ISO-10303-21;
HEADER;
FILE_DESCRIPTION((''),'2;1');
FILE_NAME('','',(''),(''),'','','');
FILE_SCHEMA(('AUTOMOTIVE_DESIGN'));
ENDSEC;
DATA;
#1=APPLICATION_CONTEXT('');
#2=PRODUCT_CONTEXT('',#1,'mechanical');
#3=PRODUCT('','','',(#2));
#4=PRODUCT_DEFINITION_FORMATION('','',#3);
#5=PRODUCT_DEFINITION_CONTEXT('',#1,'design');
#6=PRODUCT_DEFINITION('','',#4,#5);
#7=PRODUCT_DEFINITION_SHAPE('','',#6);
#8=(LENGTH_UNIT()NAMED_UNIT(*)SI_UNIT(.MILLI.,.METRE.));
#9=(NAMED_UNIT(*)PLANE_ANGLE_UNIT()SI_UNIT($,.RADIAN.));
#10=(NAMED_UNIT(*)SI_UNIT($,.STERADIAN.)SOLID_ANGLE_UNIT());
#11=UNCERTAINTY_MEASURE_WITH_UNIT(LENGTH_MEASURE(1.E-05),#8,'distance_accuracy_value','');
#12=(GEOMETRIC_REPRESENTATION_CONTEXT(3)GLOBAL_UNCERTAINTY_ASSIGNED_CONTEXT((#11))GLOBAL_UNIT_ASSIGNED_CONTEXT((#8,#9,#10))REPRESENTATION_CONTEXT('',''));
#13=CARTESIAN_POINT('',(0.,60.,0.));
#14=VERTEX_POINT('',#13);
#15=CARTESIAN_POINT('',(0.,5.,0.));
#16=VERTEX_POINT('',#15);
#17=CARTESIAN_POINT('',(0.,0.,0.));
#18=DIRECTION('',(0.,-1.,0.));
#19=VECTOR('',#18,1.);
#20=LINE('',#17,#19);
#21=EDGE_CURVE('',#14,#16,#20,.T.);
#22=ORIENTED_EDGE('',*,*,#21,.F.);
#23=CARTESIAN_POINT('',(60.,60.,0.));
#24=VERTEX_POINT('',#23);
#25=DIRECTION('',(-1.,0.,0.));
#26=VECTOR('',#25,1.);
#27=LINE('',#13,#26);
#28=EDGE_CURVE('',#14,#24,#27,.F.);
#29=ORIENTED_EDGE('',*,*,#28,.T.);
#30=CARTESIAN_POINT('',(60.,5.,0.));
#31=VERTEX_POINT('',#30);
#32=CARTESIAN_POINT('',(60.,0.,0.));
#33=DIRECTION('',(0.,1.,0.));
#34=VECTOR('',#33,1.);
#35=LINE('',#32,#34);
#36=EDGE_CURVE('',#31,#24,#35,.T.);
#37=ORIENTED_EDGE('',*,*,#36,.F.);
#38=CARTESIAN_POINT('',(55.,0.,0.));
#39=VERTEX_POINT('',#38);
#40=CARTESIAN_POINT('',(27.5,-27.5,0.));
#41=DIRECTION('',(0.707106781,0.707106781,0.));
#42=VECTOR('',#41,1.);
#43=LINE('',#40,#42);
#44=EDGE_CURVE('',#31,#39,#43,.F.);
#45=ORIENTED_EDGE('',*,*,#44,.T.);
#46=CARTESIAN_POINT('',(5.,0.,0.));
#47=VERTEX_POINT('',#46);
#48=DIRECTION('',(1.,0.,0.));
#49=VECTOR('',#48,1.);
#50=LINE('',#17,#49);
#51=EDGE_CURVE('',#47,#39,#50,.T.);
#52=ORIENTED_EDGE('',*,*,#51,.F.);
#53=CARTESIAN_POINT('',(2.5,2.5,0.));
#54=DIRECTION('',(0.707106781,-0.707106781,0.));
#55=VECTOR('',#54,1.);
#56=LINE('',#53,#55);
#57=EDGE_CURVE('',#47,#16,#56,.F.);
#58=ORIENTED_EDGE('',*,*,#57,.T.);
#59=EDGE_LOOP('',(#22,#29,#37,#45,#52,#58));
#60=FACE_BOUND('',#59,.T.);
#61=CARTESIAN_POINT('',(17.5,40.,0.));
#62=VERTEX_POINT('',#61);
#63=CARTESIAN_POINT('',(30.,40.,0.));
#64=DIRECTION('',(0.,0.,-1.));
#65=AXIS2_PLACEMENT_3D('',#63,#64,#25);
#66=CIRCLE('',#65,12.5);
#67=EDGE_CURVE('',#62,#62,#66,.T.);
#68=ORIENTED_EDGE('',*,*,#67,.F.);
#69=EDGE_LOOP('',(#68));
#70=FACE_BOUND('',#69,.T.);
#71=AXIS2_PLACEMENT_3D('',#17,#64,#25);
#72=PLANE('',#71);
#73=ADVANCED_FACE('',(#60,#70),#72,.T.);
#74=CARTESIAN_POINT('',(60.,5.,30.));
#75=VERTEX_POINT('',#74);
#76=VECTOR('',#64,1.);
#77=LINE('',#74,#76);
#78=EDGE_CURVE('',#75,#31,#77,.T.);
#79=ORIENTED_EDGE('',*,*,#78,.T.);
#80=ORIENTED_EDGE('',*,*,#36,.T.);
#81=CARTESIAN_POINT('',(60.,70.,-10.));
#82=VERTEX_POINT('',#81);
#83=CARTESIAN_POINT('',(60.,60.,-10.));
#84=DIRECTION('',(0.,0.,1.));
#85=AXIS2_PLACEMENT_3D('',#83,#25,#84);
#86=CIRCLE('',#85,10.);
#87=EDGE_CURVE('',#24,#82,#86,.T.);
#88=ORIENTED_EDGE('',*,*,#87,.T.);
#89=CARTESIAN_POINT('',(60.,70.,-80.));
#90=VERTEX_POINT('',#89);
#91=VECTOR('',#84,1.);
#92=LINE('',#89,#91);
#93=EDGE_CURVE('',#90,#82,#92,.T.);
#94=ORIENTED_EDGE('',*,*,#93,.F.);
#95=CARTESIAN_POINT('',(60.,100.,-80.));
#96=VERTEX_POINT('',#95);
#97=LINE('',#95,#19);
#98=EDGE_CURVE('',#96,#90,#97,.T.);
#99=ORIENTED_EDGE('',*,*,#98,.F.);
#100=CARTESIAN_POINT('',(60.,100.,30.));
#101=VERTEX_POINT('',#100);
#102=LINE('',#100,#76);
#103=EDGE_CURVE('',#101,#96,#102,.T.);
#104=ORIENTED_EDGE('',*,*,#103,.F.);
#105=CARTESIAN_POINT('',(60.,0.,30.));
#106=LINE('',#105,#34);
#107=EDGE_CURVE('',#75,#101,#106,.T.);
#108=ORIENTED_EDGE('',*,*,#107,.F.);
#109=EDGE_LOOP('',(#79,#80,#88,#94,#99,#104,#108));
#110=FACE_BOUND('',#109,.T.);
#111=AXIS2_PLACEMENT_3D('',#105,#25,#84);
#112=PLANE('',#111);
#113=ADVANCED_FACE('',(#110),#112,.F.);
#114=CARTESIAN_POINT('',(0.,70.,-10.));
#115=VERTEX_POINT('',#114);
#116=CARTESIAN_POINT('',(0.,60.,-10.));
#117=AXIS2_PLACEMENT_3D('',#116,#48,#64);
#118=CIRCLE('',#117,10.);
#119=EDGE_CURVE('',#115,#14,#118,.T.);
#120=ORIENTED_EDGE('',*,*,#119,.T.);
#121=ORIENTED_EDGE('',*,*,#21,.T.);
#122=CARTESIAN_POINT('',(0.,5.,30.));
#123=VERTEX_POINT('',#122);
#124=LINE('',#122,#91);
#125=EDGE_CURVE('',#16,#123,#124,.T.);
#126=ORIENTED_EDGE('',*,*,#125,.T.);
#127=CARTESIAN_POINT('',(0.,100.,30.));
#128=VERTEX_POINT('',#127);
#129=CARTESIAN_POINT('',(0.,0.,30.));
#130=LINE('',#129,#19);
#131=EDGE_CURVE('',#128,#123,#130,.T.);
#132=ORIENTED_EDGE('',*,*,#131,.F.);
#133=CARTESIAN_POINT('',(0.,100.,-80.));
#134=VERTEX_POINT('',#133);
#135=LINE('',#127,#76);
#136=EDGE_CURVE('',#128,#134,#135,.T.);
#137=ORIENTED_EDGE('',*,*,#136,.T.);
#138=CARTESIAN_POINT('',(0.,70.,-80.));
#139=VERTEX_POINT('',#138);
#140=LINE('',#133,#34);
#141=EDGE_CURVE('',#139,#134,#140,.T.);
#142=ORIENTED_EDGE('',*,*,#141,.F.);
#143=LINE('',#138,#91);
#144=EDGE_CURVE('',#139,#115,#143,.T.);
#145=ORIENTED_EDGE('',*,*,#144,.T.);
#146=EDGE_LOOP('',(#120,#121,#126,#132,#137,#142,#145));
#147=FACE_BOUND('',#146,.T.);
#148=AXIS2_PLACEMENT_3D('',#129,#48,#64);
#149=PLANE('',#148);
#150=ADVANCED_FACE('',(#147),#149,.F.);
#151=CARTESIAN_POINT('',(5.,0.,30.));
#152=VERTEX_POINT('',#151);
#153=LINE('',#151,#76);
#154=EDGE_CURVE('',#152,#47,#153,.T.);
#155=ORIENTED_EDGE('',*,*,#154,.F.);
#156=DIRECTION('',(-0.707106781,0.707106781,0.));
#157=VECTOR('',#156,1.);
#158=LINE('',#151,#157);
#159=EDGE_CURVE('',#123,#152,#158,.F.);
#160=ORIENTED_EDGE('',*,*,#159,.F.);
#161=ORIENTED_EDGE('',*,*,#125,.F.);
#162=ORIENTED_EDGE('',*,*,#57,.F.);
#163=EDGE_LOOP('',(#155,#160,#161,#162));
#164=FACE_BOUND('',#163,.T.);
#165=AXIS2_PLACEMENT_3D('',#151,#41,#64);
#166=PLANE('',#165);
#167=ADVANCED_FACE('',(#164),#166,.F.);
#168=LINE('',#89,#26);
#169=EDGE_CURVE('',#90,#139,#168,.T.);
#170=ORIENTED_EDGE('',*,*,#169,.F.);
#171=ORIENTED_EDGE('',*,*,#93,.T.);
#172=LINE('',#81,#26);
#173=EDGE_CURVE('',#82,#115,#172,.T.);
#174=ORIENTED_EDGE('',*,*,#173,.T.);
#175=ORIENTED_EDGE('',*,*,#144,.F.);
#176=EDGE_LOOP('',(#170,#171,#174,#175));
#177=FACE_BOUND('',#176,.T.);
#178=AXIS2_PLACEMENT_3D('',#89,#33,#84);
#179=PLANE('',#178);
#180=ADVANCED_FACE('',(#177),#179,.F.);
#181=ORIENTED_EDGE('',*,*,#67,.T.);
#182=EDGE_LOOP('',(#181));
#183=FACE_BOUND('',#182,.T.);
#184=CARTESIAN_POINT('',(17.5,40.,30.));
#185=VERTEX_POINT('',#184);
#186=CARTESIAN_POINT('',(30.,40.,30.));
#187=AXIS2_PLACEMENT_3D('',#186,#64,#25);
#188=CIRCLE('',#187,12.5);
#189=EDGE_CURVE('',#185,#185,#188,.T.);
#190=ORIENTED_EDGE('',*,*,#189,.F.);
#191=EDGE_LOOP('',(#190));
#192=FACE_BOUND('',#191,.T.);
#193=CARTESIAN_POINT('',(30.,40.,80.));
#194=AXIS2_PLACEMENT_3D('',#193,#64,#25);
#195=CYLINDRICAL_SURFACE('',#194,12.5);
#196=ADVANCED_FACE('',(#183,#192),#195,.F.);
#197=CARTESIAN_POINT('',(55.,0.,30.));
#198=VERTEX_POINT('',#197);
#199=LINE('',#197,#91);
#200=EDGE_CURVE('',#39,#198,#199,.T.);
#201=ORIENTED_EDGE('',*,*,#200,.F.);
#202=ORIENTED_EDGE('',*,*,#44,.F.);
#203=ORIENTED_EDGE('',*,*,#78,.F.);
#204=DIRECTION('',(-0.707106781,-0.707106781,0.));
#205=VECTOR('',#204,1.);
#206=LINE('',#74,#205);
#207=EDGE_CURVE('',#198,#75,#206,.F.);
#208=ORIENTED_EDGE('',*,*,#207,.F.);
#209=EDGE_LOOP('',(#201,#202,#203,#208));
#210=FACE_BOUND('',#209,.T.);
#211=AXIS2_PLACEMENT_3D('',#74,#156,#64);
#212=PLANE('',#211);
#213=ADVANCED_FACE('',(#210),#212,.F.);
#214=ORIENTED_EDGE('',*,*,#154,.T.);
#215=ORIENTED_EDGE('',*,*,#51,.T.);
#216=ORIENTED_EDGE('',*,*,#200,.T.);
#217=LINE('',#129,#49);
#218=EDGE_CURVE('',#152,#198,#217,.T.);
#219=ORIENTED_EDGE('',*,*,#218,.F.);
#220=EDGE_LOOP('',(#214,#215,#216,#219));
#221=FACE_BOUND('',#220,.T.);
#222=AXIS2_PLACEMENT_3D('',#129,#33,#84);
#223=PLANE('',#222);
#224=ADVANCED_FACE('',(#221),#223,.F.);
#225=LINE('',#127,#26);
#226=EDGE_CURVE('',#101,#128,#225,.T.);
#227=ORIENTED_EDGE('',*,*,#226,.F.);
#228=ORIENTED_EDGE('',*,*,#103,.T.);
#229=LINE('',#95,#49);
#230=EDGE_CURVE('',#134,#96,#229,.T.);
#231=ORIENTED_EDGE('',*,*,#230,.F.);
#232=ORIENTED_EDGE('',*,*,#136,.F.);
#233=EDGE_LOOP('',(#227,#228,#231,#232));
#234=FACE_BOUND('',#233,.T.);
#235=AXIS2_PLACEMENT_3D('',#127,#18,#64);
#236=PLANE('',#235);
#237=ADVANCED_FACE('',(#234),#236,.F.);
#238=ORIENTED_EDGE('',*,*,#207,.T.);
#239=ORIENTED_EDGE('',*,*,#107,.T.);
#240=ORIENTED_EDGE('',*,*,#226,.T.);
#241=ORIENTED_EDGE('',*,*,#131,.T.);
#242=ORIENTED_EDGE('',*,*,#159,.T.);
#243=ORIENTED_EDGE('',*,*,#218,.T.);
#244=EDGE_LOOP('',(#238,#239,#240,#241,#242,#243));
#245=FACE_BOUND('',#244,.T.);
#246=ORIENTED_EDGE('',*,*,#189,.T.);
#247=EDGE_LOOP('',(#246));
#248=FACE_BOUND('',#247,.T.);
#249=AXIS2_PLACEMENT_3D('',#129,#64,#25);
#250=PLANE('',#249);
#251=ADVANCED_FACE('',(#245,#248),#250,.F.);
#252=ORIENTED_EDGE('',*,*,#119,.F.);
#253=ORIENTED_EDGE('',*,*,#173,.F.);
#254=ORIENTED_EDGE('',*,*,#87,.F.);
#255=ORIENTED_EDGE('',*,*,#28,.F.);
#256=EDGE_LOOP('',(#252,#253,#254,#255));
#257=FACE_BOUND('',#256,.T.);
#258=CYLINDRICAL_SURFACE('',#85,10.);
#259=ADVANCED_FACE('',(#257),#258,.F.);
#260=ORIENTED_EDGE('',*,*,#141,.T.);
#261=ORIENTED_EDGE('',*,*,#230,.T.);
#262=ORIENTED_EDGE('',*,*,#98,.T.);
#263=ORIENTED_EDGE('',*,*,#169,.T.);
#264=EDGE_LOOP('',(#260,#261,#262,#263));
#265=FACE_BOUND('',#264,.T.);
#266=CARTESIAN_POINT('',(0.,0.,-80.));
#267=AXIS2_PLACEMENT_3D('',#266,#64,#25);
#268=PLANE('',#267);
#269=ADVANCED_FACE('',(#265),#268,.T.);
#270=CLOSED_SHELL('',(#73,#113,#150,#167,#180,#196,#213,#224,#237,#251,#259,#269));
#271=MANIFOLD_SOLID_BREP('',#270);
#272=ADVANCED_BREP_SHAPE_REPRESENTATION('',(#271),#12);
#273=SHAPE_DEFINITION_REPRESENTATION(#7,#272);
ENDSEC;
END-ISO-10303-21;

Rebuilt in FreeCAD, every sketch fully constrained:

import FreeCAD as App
import Part
import Sketcher
from FreeCAD import Vector
Q = App.Units.Quantity


def edges_at(feature, points):
    """Names of the edges that pass closest to the given points."""
    edges = feature.Shape.Edges
    near = lambda p: min(range(len(edges)), key=lambda i: edges[i].distToShape(Part.Vertex(*p))[0])
    return sorted({f"Edge{near(p) + 1}" for p in points})

doc = App.newDocument("Part")
body = doc.addObject("PartDesign::Body", "Body")

# Sketch on XY plane
sketch1 = doc.addObject("Sketcher::SketchObject", "Sketch")
body.addObject(sketch1)
sketch1.AttachmentSupport = (doc.XY_Plane, [""])
sketch1.MapMode = "FlatFace"
sketch1.addGeometry(Part.LineSegment(Vector(0, 100, 0), Vector(0, 0, 0)), False)
sketch1.addGeometry(Part.LineSegment(Vector(0, 0, 0), Vector(60, 0, 0)), False)
sketch1.addGeometry(Part.LineSegment(Vector(60, 0, 0), Vector(60, 100, 0)), False)
sketch1.addGeometry(Part.LineSegment(Vector(60, 100, 0), Vector(0, 100, 0)), False)
sketch1.addConstraint(Sketcher.Constraint("Coincident", 0, 2, 1, 1))
sketch1.addConstraint(Sketcher.Constraint("Coincident", 1, 2, 2, 1))
sketch1.addConstraint(Sketcher.Constraint("Coincident", 2, 2, 3, 1))
sketch1.addConstraint(Sketcher.Constraint("Coincident", 3, 2, 0, 1))
sketch1.addConstraint(Sketcher.Constraint("Vertical", 0))
sketch1.addConstraint(Sketcher.Constraint("Horizontal", 1))
sketch1.addConstraint(Sketcher.Constraint("Vertical", 2))
sketch1.addConstraint(Sketcher.Constraint("Horizontal", 3))
sketch1.addConstraint(Sketcher.Constraint("Coincident", 0, 2, -1, 1))
sketch1.addConstraint(Sketcher.Constraint("DistanceX", 1, 1, 1, 2, Q("60 mm")))
sketch1.addConstraint(Sketcher.Constraint("DistanceY", 0, 2, 0, 1, Q("100 mm")))
pad1 = doc.addObject("PartDesign::Pad", "Pad")
body.addObject(pad1)
pad1.Profile = sketch1
pad1.Length = 30

# Sketch on XY plane
sketch2 = doc.addObject("Sketcher::SketchObject", "Sketch001")
body.addObject(sketch2)
sketch2.AttachmentSupport = (doc.XY_Plane, [""])
sketch2.MapMode = "FlatFace"
sketch2.addGeometry(Part.LineSegment(Vector(60, 100, 0), Vector(60, 70, 0)), False)
sketch2.addGeometry(Part.LineSegment(Vector(60, 70, 0), Vector(0, 70, 0)), False)
sketch2.addGeometry(Part.LineSegment(Vector(0, 70, 0), Vector(0, 100, 0)), False)
sketch2.addGeometry(Part.LineSegment(Vector(0, 100, 0), Vector(60, 100, 0)), False)
sketch2.addConstraint(Sketcher.Constraint("Coincident", 0, 2, 1, 1))
sketch2.addConstraint(Sketcher.Constraint("Coincident", 1, 2, 2, 1))
sketch2.addConstraint(Sketcher.Constraint("Coincident", 2, 2, 3, 1))
sketch2.addConstraint(Sketcher.Constraint("Coincident", 3, 2, 0, 1))
sketch2.addConstraint(Sketcher.Constraint("Vertical", 0))
sketch2.addConstraint(Sketcher.Constraint("Horizontal", 1))
sketch2.addConstraint(Sketcher.Constraint("Vertical", 2))
sketch2.addConstraint(Sketcher.Constraint("Horizontal", 3))
sketch2.addConstraint(Sketcher.Constraint("PointOnObject", 1, 2, -2))
sketch2.addConstraint(Sketcher.Constraint("DistanceX", 1, 2, 1, 1, Q("60 mm")))
sketch2.addConstraint(Sketcher.Constraint("DistanceY", 0, 2, 0, 1, Q("30 mm")))
sketch2.addConstraint(Sketcher.Constraint("DistanceY", -1, 1, 0, 2, Q("70 mm")))
pad2 = doc.addObject("PartDesign::Pad", "Pad001")
body.addObject(pad2)
pad2.Profile = sketch2
pad2.Length = 80
pad2.Reversed = True

# Sketch on XY plane
sketch3 = doc.addObject("Sketcher::SketchObject", "Sketch002")
body.addObject(sketch3)
sketch3.AttachmentSupport = (doc.XY_Plane, [""])
sketch3.MapMode = "FlatFace"
sketch3.addGeometry(Part.Circle(Vector(30, 40, 0), Vector(0, 0, 1), 12), False)
sketch3.addConstraint(Sketcher.Constraint("Diameter", 0, Q("25 mm")))
sketch3.addConstraint(Sketcher.Constraint("DistanceX", -1, 1, 0, 3, Q("30 mm")))
sketch3.addConstraint(Sketcher.Constraint("DistanceY", -1, 1, 0, 3, Q("40 mm")))
pocket1 = doc.addObject("PartDesign::Pocket", "Pocket")
body.addObject(pocket1)
pocket1.Profile = sketch3
pocket1.Length = 80
pocket1.Reversed = True
doc.recompute()

fillet = doc.addObject("PartDesign::Fillet", "Fillet")
body.addObject(fillet)
fillet.Base = (pocket1, edges_at(pocket1, [(30, 70, 0)]))
fillet.Radius = 10
doc.recompute()

chamfer = doc.addObject("PartDesign::Chamfer", "Chamfer")
body.addObject(chamfer)
chamfer.Base = (fillet, edges_at(fillet, [(60, 0, 15), (0, 0, 15)]))
chamfer.Size = 5

doc.recompute()
